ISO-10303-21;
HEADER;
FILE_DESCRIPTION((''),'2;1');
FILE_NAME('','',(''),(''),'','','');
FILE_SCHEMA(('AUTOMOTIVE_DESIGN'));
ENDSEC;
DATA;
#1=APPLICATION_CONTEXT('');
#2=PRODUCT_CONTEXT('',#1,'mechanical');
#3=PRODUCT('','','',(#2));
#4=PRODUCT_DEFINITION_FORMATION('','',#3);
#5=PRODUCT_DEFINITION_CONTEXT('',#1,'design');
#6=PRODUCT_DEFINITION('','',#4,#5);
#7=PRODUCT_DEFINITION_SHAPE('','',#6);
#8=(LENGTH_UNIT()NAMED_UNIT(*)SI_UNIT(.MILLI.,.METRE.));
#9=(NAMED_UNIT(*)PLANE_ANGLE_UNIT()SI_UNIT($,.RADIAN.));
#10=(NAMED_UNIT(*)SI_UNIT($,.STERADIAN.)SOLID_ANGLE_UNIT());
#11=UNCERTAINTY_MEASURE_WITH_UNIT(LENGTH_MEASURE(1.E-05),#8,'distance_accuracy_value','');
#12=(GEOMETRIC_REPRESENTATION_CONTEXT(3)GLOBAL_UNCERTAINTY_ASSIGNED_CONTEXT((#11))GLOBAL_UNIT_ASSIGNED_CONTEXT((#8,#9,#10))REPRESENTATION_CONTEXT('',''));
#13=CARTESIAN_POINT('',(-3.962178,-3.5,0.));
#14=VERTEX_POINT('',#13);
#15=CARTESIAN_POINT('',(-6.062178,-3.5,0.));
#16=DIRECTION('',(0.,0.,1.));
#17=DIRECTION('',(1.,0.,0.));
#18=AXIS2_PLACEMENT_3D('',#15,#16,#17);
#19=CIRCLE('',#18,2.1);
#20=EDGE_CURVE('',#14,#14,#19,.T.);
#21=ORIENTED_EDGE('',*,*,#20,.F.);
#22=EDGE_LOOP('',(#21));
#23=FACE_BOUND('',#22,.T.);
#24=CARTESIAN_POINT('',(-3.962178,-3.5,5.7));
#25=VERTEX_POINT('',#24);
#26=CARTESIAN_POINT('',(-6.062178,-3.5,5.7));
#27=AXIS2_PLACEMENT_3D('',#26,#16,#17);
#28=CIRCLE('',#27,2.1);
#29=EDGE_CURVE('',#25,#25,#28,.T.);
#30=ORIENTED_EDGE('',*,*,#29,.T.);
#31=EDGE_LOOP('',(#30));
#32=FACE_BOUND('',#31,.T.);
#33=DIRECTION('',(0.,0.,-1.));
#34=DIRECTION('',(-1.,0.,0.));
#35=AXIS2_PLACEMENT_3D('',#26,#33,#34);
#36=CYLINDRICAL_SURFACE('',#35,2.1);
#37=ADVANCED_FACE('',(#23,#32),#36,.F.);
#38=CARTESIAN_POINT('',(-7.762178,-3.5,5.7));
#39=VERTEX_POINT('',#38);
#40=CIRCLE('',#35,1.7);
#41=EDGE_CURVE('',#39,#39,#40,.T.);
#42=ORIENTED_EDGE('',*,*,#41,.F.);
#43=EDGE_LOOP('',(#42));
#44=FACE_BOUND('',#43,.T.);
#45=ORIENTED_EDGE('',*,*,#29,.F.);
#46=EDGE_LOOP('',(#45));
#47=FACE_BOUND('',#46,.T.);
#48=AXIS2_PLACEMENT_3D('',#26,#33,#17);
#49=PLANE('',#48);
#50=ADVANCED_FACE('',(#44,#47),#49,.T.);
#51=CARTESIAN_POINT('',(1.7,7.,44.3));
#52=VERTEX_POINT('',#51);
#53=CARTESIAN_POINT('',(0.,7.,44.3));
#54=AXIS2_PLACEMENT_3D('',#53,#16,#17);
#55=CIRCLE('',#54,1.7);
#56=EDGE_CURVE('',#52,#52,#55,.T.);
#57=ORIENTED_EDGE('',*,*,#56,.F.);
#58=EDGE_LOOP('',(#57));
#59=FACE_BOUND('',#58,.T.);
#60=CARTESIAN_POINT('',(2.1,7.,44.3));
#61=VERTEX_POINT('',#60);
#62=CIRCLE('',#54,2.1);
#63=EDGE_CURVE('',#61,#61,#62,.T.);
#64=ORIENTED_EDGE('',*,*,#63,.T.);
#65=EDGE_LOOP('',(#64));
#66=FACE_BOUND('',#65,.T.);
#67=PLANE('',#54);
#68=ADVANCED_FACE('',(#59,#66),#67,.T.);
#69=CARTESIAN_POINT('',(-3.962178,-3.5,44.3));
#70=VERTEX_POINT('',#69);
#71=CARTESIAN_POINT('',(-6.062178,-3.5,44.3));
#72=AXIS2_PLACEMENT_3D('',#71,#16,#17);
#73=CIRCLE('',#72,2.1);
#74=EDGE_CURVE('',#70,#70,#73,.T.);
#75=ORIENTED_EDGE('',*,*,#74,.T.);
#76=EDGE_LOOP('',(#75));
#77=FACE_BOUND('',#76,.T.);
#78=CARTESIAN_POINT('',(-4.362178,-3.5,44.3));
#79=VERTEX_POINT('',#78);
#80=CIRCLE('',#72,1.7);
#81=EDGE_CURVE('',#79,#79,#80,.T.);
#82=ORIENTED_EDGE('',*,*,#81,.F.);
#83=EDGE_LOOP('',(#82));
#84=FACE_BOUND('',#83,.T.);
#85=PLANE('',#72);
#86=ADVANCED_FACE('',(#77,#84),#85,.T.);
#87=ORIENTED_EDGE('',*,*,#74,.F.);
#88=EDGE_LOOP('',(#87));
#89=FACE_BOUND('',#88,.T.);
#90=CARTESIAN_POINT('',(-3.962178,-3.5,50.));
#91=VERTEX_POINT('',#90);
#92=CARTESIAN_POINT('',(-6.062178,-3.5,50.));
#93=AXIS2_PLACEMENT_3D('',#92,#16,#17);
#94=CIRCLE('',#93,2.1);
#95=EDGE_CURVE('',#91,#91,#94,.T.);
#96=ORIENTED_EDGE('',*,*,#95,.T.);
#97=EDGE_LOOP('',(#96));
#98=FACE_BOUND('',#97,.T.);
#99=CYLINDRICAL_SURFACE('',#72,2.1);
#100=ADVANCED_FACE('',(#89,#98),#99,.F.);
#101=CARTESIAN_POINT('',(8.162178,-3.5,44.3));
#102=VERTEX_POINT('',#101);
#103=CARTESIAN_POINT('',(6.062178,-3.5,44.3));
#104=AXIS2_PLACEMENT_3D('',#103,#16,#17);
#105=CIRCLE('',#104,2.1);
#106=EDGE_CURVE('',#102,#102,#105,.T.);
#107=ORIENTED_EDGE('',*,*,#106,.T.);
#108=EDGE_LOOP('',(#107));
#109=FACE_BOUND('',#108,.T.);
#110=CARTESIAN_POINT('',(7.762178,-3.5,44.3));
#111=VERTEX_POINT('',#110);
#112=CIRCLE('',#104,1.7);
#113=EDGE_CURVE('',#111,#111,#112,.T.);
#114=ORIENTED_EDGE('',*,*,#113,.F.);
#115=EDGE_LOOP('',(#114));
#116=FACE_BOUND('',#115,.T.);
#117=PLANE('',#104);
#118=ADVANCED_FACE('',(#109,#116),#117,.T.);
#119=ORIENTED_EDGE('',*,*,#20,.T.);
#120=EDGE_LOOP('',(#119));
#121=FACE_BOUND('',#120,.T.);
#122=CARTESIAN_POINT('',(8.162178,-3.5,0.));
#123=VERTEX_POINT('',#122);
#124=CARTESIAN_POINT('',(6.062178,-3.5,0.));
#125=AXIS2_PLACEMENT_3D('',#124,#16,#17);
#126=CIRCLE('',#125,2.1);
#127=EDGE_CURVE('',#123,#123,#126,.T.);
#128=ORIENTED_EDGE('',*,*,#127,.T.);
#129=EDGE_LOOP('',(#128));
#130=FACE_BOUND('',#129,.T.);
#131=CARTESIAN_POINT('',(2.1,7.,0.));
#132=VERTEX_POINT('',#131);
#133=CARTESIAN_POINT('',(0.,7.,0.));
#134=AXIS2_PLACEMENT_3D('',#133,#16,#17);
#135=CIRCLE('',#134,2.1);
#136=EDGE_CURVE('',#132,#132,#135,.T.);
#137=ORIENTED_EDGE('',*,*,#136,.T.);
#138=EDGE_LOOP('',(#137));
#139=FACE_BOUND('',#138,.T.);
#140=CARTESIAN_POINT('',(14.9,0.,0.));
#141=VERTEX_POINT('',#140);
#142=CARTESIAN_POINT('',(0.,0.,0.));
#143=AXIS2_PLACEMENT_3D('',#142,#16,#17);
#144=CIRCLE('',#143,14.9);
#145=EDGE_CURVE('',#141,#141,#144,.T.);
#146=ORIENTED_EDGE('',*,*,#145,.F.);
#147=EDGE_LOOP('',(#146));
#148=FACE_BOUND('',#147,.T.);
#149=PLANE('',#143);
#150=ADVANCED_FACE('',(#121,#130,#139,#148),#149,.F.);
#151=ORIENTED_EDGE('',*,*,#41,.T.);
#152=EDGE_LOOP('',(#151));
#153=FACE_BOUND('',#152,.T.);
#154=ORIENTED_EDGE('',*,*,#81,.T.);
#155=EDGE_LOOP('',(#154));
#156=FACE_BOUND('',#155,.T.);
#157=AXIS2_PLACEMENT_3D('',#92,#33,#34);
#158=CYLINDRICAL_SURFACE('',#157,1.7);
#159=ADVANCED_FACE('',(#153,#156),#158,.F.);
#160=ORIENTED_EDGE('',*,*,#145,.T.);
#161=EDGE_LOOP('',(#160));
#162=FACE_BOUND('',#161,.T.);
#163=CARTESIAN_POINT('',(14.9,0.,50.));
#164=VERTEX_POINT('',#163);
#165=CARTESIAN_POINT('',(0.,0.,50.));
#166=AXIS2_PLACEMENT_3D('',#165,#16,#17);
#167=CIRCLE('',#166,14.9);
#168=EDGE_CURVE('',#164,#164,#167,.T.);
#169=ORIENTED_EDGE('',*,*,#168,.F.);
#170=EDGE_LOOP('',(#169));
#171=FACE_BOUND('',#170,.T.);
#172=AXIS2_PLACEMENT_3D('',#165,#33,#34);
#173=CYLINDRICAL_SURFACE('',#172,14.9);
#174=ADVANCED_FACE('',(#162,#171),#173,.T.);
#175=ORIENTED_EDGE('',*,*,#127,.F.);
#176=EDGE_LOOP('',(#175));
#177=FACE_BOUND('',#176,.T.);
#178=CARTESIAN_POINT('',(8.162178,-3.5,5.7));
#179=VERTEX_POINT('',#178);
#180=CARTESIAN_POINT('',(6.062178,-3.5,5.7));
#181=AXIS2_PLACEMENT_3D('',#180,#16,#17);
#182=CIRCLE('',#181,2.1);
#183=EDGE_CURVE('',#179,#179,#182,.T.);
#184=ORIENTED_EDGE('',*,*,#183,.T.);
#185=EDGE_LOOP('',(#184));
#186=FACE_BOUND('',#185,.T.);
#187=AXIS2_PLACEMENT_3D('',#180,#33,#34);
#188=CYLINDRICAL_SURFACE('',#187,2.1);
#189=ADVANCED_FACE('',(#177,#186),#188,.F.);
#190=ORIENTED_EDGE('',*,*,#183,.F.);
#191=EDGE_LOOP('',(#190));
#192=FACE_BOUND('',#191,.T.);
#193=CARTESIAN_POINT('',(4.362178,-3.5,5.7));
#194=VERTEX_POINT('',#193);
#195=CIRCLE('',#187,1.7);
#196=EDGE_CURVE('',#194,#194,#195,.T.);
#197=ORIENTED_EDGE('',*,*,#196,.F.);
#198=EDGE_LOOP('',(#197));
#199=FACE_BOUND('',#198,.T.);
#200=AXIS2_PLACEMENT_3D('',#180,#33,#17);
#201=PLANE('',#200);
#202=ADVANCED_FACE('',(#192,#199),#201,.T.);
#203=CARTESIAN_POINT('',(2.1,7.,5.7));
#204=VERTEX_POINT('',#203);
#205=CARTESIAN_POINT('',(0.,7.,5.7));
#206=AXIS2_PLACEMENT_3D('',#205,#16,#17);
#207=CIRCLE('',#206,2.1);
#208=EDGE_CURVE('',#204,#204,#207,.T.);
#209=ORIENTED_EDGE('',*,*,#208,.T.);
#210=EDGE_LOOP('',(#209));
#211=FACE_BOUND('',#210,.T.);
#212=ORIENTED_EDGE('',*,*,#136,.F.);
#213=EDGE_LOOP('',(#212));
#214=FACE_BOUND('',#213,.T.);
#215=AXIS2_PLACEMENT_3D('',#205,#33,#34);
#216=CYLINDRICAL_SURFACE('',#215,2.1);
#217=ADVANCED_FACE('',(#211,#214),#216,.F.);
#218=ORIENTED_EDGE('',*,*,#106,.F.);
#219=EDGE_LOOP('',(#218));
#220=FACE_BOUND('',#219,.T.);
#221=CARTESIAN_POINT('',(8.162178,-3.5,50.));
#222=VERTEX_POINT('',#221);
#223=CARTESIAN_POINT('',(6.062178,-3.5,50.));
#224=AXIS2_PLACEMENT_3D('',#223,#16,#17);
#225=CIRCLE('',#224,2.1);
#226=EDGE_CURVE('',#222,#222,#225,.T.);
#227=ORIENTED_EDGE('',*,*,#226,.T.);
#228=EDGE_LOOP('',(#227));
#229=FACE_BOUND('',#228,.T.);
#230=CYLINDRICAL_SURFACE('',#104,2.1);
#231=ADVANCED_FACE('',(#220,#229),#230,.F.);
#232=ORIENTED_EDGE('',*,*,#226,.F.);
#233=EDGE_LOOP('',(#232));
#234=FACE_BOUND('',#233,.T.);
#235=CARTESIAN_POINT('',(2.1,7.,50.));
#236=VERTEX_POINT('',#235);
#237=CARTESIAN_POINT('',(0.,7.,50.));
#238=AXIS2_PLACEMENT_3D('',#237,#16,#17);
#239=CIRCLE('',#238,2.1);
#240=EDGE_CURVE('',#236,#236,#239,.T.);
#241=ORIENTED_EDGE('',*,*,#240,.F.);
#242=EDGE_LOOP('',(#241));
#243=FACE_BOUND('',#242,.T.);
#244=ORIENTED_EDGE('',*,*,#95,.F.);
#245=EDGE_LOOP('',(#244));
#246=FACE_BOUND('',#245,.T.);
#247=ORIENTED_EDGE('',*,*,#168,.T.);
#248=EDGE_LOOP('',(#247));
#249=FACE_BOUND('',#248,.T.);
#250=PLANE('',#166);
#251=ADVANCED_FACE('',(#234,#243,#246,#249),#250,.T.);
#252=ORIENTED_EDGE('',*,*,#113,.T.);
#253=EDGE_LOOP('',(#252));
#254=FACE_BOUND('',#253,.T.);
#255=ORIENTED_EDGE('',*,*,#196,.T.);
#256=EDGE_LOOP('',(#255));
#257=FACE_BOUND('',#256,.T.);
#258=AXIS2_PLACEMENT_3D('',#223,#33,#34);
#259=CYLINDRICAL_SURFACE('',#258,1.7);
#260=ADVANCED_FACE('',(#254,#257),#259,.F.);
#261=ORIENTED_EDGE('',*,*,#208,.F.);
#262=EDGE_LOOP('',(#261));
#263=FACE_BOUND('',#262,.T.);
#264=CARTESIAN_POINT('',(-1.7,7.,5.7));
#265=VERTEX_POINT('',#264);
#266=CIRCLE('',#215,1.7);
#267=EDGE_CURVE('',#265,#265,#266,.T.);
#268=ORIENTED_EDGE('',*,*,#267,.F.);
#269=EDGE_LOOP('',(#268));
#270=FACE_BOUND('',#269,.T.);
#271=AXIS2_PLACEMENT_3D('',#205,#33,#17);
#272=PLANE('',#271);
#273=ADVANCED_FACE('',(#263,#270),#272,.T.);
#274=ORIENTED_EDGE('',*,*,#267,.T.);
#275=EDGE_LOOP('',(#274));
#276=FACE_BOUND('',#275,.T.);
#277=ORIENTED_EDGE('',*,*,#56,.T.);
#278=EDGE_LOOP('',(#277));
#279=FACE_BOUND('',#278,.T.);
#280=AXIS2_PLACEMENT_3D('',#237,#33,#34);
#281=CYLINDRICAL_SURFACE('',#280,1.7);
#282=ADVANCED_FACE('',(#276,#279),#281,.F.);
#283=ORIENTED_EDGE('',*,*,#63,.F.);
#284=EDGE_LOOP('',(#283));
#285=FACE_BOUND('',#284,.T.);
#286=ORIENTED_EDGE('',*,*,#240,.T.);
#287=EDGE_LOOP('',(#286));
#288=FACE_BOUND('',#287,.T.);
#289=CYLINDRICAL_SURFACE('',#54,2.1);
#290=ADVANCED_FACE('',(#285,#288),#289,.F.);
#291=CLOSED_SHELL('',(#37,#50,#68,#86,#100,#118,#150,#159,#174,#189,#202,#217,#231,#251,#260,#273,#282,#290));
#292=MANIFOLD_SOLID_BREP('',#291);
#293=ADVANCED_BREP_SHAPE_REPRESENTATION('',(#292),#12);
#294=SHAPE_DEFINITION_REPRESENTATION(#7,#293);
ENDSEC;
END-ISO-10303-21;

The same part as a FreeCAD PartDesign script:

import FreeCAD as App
import Part
import Sketcher
Q = App.Units.Quantity

doc = App.newDocument("Part")
body = doc.addObject("PartDesign::Body", "Body")

sketch1 = body.newObject("Sketcher::SketchObject", "Sketch")
sketch1.AttachmentSupport = (doc.getObject("XY_Plane"), [""])
sketch1.MapMode = "FlatFace"
sketch1.addGeometry(Part.Circle(App.Vector(0, 0, 0), App.Vector(0, 0, 1), 14.9), False)
sketch1.addGeometry(Part.Circle(App.Vector(-6.1, -3.5, 0), App.Vector(0, 0, 1), 1.7), False)
sketch1.addGeometry(Part.Circle(App.Vector(6.1, -3.5, 0), App.Vector(0, 0, 1), 1.7), False)
sketch1.addGeometry(Part.Circle(App.Vector(0, 7, 0), App.Vector(0, 0, 1), 1.7), False)
sketch1.addConstraint(Sketcher.Constraint("Coincident", 0, 3, -1, 1))
sketch1.addConstraint(Sketcher.Constraint("Equal", 1, 2))
sketch1.addConstraint(Sketcher.Constraint("Equal", 2, 3))
sketch1.addConstraint(Sketcher.Constraint("Symmetric", 1, 3, 2, 3, -2))
sketch1.addConstraint(Sketcher.Constraint("PointOnObject", 3, 3, -2))
sketch1.addConstraint(Sketcher.Constraint("Diameter", 0, Q("29.8 mm")))
sketch1.addConstraint(Sketcher.Constraint("Diameter", 1, Q("3.4 mm")))
sketch1.addConstraint(Sketcher.Constraint("DistanceY", -1, 1, 3, 3, Q("7 mm")))
sketch1.addConstraint(Sketcher.Constraint("DistanceY", 1, 3, -1, 1, Q("3.5 mm")))
sketch1.addConstraint(Sketcher.Constraint("DistanceX", 1, 3, -1, 1, Q("6.062178 mm")))
pad1 = body.newObject("PartDesign::Pad", "Pad")
pad1.Profile = sketch1
pad1.Length = 50

sketch2 = body.newObject("Sketcher::SketchObject", "Sketch001")
sketch2.AttachmentSupport = (doc.getObject("XY_Plane"), [""])
sketch2.MapMode = "FlatFace"
sketch2.AttachmentOffset = App.Placement(App.Vector(0, 0, 50), App.Rotation())
sketch2.addGeometry(Part.Circle(App.Vector(0, 7, 0), App.Vector(0, 0, 1), 2.1), False)
sketch2.addGeometry(Part.Circle(App.Vector(6.1, -3.5, 0), App.Vector(0, 0, 1), 2.1), False)
sketch2.addGeometry(Part.Circle(App.Vector(-6.1, -3.5, 0), App.Vector(0, 0, 1), 2.1), False)
sketch2.addConstraint(Sketcher.Constraint("Equal", 0, 1))
sketch2.addConstraint(Sketcher.Constraint("Equal", 1, 2))
sketch2.addConstraint(Sketcher.Constraint("Symmetric", 1, 3, 2, 3, -2))
sketch2.addConstraint(Sketcher.Constraint("PointOnObject", 0, 3, -2))
sketch2.addConstraint(Sketcher.Constraint("Diameter", 0, Q("4.2 mm")))
sketch2.addConstraint(Sketcher.Constraint("DistanceY", -1, 1, 0, 3, Q("7 mm")))
sketch2.addConstraint(Sketcher.Constraint("DistanceY", 1, 3, -1, 1, Q("3.5 mm")))
sketch2.addConstraint(Sketcher.Constraint("DistanceX", -1, 1, 1, 3, Q("6.062178 mm")))
pocket1 = body.newObject("PartDesign::Pocket", "Pocket")
pocket1.Profile = sketch2
pocket1.Length = 5.7
doc.recompute()

datumplane = body.newObject("PartDesign::Plane", "DatumPlane")
datumplane.AttachmentSupport = (doc.getObject("XY_Plane"), [""])
datumplane.MapMode = "FlatFace"
datumplane.AttachmentOffset = App.Placement(App.Vector(0, 0, 25), App.Rotation())
mirrored = body.newObject("PartDesign::Mirrored", "Mirrored")
mirrored.Originals = [pocket1]
mirrored.MirrorPlane = (datumplane, [""])
body.Tip = mirrored

doc.recompute()
